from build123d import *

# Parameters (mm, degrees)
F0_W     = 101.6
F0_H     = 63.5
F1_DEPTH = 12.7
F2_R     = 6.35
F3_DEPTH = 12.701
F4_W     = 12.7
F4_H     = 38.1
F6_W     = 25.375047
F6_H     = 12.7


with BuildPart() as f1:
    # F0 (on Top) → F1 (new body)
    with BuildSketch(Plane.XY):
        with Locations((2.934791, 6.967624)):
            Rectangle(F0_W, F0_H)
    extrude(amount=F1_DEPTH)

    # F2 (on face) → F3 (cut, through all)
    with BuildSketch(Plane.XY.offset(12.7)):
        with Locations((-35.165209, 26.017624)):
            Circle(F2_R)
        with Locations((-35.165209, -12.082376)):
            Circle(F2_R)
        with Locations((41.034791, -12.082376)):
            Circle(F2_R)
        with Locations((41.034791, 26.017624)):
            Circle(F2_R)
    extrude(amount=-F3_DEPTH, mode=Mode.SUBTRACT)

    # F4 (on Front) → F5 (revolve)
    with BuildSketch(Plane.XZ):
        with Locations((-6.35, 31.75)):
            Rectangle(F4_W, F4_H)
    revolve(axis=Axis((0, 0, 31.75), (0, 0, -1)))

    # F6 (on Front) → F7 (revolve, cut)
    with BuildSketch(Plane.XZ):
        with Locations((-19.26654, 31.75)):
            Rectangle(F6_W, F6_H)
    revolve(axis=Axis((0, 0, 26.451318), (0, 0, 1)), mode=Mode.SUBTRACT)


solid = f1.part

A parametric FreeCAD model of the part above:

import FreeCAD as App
import Part
import Sketcher

V = App.Vector
Q = App.Units.Quantity


def add_polygon(sketch, points):
    """Adds a closed chain of lines whose ends are joined by coincident constraints."""
    first, n = sketch.GeometryCount, len(points)
    for a, b in zip(points, points[1:] + points[:1]):
        sketch.addGeometry(Part.LineSegment(App.Vector(*a, 0), App.Vector(*b, 0)), False)
    for i in range(n):
        sketch.addConstraint(Sketcher.Constraint("Coincident", first + i, 2, first + (i + 1) % n, 1))

doc = App.newDocument("Part")
body = doc.addObject("PartDesign::Body", "Body")

# Sketch on XY plane
sketch1 = doc.addObject("Sketcher::SketchObject", "Sketch")
body.addObject(sketch1)
sketch1.AttachmentSupport = (doc.XY_Plane, [""])
sketch1.MapMode = "FlatFace"
add_polygon(sketch1, [(-47.865209, 38.717624), (-47.865209, -24.782376), (53.734791, -24.782376), (53.734791, 38.717624)])  # lines 0-3
sketch1.addConstraint([
    Sketcher.Constraint("Vertical", 0),
    Sketcher.Constraint("Horizontal", 1),
    Sketcher.Constraint("Vertical", 2),
    Sketcher.Constraint("Horizontal", 3),
    Sketcher.Constraint("DistanceX", 1, 1, 1, 2, Q("4 in")),
    Sketcher.Constraint("DistanceY", 0, 2, 0, 1, Q("2.5 in")),
    Sketcher.Constraint("DistanceX", 0, 2, -1, 1, 47.865209),
    Sketcher.Constraint("DistanceY", 0, 2, -1, 1, 24.782376),
])
pad1 = doc.addObject("PartDesign::Pad", "Pad")
body.addObject(pad1)
pad1.Profile = sketch1
pad1.Length = Q("0.5 in")

# Sketch on XY plane
sketch2 = doc.addObject("Sketcher::SketchObject", "Sketch001")
body.addObject(sketch2)
sketch2.AttachmentSupport = (doc.XY_Plane, [""])
sketch2.MapMode = "FlatFace"
sketch2.AttachmentOffset = App.Placement(V(0, 0, 0.5 * 25.4), App.Rotation())
sketch2.addGeometry([
    Part.Circle(V(-35.165209, 26.017624, 0), V(0, 0, 1), 6.35),
    Part.Circle(V(-35.165209, -12.082376, 0), V(0, 0, 1), 6.35),
    Part.Circle(V(41.034791, -12.082376, 0), V(0, 0, 1), 6.35),
    Part.Circle(V(41.034791, 26.017624, 0), V(0, 0, 1), 6.35),
], False)
sketch2.addConstraint([
    Sketcher.Constraint("Equal", 0, 1),
    Sketcher.Constraint("Equal", 1, 2),
    Sketcher.Constraint("Equal", 2, 3),
    Sketcher.Constraint("Horizontal", 1, 3, 2, 3),
    Sketcher.Constraint("Horizontal", 0, 3, 3, 3),
    Sketcher.Constraint("Vertical", 0, 3, 1, 3),
    Sketcher.Constraint("Vertical", 2, 3, 3, 3),
    Sketcher.Constraint("Diameter", 0, Q("0.5 in")),
    Sketcher.Constraint("DistanceX", 1, 3, 2, 3, Q("3 in")),
    Sketcher.Constraint("DistanceY", 1, 3, 0, 3, Q("1.5 in")),
    Sketcher.Constraint("DistanceX", 0, 3, -1, 1, 35.165209),
    Sketcher.Constraint("DistanceY", -1, 1, 0, 3, 26.017624),
])
pocket1 = doc.addObject("PartDesign::Pocket", "Pocket")
body.addObject(pocket1)
pocket1.Profile = sketch2
pocket1.Type = "ThroughAll"

# Sketch on XZ plane
sketch3 = doc.addObject("Sketcher::SketchObject", "Sketch002")
body.addObject(sketch3)
sketch3.AttachmentSupport = (doc.XZ_Plane, [""])
sketch3.MapMode = "FlatFace"
add_polygon(sketch3, [(-12.7, 50.8), (-12.7, 12.7), (0, 12.7), (0, 50.8)])  # lines 0-3
sketch3.addConstraint([
    Sketcher.Constraint("Vertical", 0),
    Sketcher.Constraint("Horizontal", 1),
    Sketcher.Constraint("Vertical", 2),
    Sketcher.Constraint("Horizontal", 3),
    Sketcher.Constraint("PointOnObject", 1, 2, -2),
    Sketcher.Constraint("DistanceX", 1, 1, 1, 2, Q("0.5 in")),
    Sketcher.Constraint("DistanceY", 0, 2, 0, 1, Q("1.5 in")),
    Sketcher.Constraint("DistanceY", -1, 1, 2, 2, Q("2 in")),
])
revolution = doc.addObject("PartDesign::Revolution", "Revolution")
body.addObject(revolution)
revolution.Profile = sketch3
revolution.ReferenceAxis = (sketch3, ["V_Axis"])
revolution.Angle = 360

# Sketch on XZ plane
sketch4 = doc.addObject("Sketcher::SketchObject", "Sketch003")
body.addObject(sketch4)
sketch4.AttachmentSupport = (doc.XZ_Plane, [""])
sketch4.MapMode = "FlatFace"
add_polygon(sketch4, [(-31.954064, 38.1), (-31.954064, 25.4), (-6.579016, 25.4), (-6.579016, 38.1)])  # lines 0-3
sketch4.addConstraint([
    Sketcher.Constraint("Vertical", 0),
    Sketcher.Constraint("Horizontal", 1),
    Sketcher.Constraint("Vertical", 2),
    Sketcher.Constraint("Horizontal", 3),
    Sketcher.Constraint("DistanceY", 0, 2, 0, 1, Q("0.5 in")),
    Sketcher.Constraint("DistanceY", -1, 1, 0, 2, Q("1 in")),
    Sketcher.Constraint("DistanceX", 1, 1, 1, 2, 25.375047),
    Sketcher.Constraint("DistanceX", 0, 2, -1, 1, 31.954064),
])
groove = doc.addObject("PartDesign::Groove", "Groove")
body.addObject(groove)
groove.Profile = sketch4
groove.ReferenceAxis = (sketch4, ["V_Axis"])
groove.Angle = 360

doc.recompute()
